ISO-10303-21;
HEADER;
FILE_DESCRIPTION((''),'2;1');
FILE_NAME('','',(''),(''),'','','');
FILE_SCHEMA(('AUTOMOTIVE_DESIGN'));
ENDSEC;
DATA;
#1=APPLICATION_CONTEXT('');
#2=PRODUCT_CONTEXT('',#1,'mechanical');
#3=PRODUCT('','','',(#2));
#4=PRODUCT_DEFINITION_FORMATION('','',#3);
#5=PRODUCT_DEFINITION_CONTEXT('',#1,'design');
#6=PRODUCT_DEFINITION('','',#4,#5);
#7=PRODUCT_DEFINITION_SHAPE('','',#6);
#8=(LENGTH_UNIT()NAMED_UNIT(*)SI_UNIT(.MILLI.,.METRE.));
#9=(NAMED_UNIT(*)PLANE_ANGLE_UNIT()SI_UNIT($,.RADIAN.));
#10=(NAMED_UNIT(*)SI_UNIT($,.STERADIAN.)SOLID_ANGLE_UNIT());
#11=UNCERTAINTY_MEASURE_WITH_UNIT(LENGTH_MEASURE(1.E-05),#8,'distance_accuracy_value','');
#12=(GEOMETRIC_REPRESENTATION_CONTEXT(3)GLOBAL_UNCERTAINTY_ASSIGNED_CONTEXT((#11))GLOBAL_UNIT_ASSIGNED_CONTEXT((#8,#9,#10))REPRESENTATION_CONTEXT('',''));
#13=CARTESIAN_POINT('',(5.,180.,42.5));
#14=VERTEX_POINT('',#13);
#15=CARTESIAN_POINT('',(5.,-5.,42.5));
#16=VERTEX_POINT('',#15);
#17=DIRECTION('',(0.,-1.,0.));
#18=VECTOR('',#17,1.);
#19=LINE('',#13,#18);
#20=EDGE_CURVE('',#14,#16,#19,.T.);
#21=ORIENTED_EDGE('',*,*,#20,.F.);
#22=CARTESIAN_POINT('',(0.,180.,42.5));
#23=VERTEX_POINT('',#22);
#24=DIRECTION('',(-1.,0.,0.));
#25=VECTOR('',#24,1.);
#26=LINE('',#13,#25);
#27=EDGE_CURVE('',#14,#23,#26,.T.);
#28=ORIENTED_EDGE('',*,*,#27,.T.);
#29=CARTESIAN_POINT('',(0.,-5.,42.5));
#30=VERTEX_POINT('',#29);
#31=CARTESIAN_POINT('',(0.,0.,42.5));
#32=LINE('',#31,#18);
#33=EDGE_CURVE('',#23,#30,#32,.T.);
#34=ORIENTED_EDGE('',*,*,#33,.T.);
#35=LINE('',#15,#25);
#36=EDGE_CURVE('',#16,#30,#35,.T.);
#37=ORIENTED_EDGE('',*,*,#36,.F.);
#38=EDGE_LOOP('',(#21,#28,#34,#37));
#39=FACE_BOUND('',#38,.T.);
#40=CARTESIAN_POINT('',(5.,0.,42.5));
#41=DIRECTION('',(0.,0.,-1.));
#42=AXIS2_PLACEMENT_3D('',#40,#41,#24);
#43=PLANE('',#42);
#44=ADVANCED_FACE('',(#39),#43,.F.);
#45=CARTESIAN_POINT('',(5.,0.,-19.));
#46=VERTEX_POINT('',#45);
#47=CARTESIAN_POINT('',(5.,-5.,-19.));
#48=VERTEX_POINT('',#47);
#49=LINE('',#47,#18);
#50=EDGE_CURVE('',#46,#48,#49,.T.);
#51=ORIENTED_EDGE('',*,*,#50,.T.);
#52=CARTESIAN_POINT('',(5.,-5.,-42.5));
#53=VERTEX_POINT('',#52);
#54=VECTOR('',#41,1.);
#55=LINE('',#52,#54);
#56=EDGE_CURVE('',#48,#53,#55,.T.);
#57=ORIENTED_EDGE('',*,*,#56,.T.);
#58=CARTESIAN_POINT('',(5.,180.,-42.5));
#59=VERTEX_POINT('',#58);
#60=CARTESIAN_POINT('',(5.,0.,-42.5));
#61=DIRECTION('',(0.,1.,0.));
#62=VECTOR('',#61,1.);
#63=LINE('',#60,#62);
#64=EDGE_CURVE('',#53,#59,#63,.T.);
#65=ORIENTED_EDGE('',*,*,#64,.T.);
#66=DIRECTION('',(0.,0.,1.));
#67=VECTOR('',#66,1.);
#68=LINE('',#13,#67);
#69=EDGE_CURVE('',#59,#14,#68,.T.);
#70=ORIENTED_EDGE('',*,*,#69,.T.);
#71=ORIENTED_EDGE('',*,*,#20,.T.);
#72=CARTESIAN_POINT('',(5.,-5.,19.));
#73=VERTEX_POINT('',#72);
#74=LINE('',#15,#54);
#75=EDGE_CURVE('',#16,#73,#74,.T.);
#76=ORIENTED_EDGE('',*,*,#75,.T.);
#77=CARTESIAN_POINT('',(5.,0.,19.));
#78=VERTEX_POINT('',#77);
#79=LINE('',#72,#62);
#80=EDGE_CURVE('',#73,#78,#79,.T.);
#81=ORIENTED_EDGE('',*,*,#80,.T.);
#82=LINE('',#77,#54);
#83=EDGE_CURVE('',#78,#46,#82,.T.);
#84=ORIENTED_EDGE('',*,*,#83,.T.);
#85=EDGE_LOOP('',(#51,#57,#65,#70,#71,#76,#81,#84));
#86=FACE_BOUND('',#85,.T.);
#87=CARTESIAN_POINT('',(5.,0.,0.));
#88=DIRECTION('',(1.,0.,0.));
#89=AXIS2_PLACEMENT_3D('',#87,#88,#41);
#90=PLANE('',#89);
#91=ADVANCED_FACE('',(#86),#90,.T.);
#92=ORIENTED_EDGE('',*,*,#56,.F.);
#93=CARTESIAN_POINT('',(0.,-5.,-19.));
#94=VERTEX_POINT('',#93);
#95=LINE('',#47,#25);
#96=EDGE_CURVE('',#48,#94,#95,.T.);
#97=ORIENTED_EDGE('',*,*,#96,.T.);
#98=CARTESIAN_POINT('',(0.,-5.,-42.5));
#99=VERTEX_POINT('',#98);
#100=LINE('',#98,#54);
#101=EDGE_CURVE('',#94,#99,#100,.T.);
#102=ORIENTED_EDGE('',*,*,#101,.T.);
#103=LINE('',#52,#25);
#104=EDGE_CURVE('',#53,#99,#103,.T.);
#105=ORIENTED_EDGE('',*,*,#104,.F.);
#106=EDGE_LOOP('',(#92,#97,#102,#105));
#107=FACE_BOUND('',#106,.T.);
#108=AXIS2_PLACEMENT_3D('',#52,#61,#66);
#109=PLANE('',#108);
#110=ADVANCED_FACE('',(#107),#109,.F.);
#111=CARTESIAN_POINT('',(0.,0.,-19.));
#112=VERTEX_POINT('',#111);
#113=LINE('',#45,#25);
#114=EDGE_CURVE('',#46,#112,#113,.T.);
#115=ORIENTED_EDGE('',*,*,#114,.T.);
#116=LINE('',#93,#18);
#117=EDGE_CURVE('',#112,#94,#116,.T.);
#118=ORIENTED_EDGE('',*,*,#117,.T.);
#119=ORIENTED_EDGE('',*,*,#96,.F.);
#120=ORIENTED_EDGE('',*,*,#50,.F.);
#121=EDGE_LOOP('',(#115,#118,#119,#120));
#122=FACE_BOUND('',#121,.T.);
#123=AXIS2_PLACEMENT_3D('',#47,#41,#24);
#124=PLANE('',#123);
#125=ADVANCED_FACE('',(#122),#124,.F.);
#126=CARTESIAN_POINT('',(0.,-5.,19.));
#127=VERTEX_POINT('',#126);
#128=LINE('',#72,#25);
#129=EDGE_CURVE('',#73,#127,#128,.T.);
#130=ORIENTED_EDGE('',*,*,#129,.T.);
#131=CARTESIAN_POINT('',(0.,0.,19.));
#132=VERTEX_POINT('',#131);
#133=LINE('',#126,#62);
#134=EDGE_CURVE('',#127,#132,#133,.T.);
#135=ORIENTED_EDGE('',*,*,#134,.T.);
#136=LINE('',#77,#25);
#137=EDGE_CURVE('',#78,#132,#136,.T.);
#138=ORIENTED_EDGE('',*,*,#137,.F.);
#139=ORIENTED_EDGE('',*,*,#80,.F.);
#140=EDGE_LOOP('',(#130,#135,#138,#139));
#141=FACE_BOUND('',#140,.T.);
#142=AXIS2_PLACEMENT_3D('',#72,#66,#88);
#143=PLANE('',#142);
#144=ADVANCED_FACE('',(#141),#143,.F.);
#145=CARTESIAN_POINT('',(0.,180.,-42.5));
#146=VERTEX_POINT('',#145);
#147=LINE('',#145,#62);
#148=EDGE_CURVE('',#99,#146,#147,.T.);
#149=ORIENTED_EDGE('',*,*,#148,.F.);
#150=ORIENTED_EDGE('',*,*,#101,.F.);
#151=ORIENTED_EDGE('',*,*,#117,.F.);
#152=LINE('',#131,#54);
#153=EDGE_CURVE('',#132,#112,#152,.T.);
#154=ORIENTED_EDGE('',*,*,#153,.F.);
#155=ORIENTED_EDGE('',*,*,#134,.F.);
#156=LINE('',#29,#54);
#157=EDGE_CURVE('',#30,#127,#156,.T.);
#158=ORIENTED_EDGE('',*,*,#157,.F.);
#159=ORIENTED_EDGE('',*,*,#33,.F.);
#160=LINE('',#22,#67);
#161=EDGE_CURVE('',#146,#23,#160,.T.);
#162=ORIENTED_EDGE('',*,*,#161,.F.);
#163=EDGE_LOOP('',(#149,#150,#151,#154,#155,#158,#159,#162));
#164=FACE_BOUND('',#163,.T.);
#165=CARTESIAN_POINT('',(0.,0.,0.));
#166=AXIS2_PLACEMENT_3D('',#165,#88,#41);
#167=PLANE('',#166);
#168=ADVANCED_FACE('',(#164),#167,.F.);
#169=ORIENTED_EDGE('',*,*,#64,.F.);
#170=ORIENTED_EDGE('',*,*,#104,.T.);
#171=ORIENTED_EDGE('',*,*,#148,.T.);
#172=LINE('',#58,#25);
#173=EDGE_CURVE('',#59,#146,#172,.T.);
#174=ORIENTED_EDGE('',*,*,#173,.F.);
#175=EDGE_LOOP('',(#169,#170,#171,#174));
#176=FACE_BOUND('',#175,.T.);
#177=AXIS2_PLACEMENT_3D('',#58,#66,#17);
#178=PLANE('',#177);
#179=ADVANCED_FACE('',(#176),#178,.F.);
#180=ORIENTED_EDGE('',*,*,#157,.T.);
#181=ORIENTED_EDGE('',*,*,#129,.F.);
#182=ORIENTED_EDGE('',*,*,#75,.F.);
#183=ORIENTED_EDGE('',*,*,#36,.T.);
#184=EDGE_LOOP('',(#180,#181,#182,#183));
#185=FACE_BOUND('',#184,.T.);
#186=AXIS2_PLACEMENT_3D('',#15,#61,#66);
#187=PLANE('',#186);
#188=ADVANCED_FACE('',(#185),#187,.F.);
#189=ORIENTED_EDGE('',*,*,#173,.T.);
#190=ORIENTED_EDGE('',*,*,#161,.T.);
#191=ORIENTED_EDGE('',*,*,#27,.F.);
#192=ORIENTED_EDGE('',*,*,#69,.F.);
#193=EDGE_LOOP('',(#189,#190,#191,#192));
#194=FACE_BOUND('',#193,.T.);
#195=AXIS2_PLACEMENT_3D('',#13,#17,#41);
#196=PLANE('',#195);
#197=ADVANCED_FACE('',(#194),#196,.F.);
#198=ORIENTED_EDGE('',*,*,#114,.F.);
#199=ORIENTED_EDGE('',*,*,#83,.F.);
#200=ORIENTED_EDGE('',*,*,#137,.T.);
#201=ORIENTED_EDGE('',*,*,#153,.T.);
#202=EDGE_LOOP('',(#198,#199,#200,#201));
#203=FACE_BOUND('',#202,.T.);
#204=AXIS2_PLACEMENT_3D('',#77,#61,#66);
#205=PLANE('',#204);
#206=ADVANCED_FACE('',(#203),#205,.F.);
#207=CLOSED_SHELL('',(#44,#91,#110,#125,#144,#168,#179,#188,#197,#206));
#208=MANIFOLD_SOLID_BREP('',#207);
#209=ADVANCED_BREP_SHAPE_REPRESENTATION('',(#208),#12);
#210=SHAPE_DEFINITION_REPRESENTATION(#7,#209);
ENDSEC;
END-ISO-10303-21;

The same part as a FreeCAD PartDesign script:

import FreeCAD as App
import Part
import Sketcher

doc = App.newDocument("Part")
params = doc.addObject("Spreadsheet::Sheet", "Params")
for row, (alias, value) in enumerate([
    ("sketch1_width", "185 mm"),
    ("sketch1_width2", "5 mm"),
    ("sketch1_height", "85 mm"),
    ("sketch1_height2", "38 mm"),
    ("pad1_length", "5 mm"),
], start=1):
    params.set(f"A{row}", alias)
    params.set(f"B{row}", "=" + value)
    params.setAlias(f"B{row}", alias)

body = doc.addObject("PartDesign::Body", "Body")

# Sketch on YZ plane
sketch1 = body.newObject("Sketcher::SketchObject", "Sketch")
sketch1.AttachmentSupport = (doc.getObject("YZ_Plane"), [""])
sketch1.MapMode = "FlatFace"
sketch1.addGeometry([
    Part.LineSegment(App.Vector(180, -42, 0), App.Vector(180, 42, 0)),  # 0
    Part.LineSegment(App.Vector(180, 42, 0), App.Vector(-5, 42, 0)),  # 1
    Part.LineSegment(App.Vector(-5, 42, 0), App.Vector(-5, 19, 0)),  # 2
    Part.LineSegment(App.Vector(-5, 19, 0), App.Vector(0, 19, 0)),  # 3
    Part.LineSegment(App.Vector(0, 19, 0), App.Vector(0, -19, 0)),  # 4
    Part.LineSegment(App.Vector(0, -19, 0), App.Vector(-5, -19, 0)),  # 5
    Part.LineSegment(App.Vector(-5, -19, 0), App.Vector(-5, -42, 0)),  # 6
    Part.LineSegment(App.Vector(-5, -42, 0), App.Vector(180, -42, 0)),  # 7
], False)
sketch1.addConstraint([
    Sketcher.Constraint("Coincident", 0, 2, 1, 1),
    Sketcher.Constraint("Coincident", 1, 2, 2, 1),
    Sketcher.Constraint("Coincident", 2, 2, 3, 1),
    Sketcher.Constraint("Coincident", 3, 2, 4, 1),
    Sketcher.Constraint("Coincident", 4, 2, 5, 1),
    Sketcher.Constraint("Coincident", 5, 2, 6, 1),
    Sketcher.Constraint("Coincident", 6, 2, 7, 1),
    Sketcher.Constraint("Coincident", 7, 2, 0, 1),
    Sketcher.Constraint("Vertical", 0),
    Sketcher.Constraint("Horizontal", 1),
    Sketcher.Constraint("Vertical", 2),
    Sketcher.Constraint("Horizontal", 3),
    Sketcher.Constraint("Vertical", 4),
    Sketcher.Constraint("Horizontal", 5),
    Sketcher.Constraint("Vertical", 6),
    Sketcher.Constraint("Horizontal", 7),
    Sketcher.Constraint("Symmetric", 3, 2, 4, 2, -1, 1),
    Sketcher.Constraint("Symmetric", 1, 2, 6, 2, -1),
    Sketcher.Constraint("DistanceX", 1, 2, 1, 1, 185.0),
    Sketcher.Constraint("DistanceX", 3, 1, 3, 2, 5.0),
    Sketcher.Constraint("DistanceY", 0, 1, 0, 2, 85.0),
    Sketcher.Constraint("DistanceY", 4, 2, 4, 1, 38.0),
])
sketch1.setExpression("Constraints[18]", "Params.sketch1_width")
sketch1.setExpression("Constraints[19]", "Params.sketch1_width2")
sketch1.setExpression("Constraints[20]", "Params.sketch1_height")
sketch1.setExpression("Constraints[21]", "Params.sketch1_height2")
pad1 = body.newObject("PartDesign::Pad", "Pad")
pad1.Profile = sketch1
pad1.setExpression("Length", "Params.pad1_length")

doc.recompute()
